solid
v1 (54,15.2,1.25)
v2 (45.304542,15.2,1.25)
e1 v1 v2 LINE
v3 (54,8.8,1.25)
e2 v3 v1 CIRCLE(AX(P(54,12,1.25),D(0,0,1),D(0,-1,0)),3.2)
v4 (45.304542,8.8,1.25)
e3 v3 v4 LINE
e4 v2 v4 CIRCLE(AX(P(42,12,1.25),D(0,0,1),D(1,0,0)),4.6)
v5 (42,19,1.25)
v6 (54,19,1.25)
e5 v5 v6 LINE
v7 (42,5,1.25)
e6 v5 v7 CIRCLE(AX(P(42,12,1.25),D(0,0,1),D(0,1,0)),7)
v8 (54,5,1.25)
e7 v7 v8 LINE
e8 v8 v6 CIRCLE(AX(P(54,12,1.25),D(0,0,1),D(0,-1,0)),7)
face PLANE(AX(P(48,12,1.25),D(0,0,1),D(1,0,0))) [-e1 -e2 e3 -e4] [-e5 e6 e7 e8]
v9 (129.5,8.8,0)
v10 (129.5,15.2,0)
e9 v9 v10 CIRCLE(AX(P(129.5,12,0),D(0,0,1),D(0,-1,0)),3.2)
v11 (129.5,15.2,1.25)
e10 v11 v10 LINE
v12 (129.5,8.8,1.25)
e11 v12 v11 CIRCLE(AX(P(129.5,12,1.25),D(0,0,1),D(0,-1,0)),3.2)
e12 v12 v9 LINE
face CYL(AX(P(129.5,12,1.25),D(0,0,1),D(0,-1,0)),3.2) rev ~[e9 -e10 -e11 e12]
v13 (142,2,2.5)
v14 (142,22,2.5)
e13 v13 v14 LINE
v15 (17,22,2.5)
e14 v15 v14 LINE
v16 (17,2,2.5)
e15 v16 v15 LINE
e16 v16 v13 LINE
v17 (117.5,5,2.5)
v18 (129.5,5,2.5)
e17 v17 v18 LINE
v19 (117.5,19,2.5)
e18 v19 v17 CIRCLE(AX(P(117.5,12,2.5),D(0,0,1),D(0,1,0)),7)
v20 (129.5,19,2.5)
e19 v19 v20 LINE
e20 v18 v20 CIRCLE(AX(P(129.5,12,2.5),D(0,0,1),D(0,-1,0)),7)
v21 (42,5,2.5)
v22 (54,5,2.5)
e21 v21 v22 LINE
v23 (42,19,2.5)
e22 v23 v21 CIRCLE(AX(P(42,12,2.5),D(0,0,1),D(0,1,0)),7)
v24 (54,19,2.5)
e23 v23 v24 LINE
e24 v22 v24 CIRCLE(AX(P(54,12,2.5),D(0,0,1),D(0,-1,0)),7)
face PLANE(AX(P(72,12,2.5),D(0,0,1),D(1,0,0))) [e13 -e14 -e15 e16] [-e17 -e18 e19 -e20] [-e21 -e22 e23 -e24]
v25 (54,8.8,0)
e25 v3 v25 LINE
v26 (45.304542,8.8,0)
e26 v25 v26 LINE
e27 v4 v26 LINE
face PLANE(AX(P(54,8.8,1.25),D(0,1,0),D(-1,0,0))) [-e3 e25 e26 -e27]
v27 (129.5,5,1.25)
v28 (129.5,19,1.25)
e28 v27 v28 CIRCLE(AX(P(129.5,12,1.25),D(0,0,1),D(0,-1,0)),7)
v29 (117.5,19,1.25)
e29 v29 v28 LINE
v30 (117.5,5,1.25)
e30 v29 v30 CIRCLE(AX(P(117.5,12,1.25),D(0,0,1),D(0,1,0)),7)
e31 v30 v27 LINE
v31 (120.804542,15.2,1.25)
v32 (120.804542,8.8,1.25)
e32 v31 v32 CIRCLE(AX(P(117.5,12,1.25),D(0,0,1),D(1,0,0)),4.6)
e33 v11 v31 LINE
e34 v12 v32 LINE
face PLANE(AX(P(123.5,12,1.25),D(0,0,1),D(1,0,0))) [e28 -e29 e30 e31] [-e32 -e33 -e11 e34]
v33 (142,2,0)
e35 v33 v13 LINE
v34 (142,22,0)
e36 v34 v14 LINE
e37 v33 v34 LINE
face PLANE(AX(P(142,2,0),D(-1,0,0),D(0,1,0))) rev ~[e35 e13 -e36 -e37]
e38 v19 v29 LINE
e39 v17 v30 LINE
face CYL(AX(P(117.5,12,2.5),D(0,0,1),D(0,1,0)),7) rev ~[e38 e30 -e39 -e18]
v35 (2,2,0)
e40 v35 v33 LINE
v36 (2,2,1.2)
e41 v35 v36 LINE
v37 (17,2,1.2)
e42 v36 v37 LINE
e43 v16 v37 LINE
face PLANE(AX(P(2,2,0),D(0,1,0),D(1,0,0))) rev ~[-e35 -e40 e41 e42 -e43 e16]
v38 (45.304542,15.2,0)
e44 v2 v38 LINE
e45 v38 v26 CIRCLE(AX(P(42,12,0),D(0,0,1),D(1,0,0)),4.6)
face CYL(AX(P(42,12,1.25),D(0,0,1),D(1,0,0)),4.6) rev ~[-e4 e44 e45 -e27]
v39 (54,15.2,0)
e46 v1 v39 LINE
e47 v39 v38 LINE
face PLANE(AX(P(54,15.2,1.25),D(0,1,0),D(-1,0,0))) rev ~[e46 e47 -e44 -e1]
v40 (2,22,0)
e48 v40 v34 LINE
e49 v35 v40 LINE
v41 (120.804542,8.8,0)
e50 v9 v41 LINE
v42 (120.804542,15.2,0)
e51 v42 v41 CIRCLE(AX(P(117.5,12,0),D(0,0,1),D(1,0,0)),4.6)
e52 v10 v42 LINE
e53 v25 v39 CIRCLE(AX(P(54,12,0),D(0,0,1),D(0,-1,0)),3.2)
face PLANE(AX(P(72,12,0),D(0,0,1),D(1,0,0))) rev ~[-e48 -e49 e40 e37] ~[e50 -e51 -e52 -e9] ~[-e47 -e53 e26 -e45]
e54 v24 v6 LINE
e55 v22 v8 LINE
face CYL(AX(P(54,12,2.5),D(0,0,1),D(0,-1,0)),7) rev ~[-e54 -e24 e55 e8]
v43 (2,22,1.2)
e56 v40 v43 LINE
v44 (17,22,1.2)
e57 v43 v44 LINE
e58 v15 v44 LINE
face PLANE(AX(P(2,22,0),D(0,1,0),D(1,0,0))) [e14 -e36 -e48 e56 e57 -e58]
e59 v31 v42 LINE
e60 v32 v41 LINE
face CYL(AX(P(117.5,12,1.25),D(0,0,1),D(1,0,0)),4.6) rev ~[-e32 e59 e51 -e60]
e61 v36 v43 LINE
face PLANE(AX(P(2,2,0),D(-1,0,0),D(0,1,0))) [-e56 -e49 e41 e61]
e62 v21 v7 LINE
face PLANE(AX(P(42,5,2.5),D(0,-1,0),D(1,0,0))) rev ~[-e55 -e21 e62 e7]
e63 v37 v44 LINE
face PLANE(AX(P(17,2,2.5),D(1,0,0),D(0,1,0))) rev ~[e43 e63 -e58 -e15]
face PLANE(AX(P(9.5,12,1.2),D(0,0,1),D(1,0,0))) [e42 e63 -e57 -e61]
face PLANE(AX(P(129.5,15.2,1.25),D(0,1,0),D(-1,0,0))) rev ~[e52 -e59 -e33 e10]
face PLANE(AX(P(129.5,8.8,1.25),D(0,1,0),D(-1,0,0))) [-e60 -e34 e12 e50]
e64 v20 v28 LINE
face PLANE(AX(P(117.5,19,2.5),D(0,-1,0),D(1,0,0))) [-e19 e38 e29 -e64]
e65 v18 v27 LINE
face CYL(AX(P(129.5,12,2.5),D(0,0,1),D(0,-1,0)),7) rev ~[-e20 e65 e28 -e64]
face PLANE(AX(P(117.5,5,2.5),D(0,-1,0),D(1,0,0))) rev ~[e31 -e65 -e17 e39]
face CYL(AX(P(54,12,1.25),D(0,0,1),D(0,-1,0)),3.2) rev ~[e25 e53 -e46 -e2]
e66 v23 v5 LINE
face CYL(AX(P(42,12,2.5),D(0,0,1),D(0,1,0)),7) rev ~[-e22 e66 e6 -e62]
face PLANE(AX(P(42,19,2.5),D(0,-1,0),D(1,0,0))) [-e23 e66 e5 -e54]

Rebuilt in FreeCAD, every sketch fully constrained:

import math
import FreeCAD as App
import Part
import Sketcher


def add_polygon(sketch, points):
    """Adds a closed chain of lines whose ends are joined by coincident constraints."""
    first, n = sketch.GeometryCount, len(points)
    for a, b in zip(points, points[1:] + points[:1]):
        sketch.addGeometry(Part.LineSegment(App.Vector(*a, 0), App.Vector(*b, 0)), False)
    for i in range(n):
        sketch.addConstraint(Sketcher.Constraint("Coincident", first + i, 2, first + (i + 1) % n, 1))

doc = App.newDocument("Part")
body = doc.addObject("PartDesign::Body", "Body")

# Sketch on XY plane
sketch1 = body.newObject("Sketcher::SketchObject", "Sketch")
sketch1.AttachmentSupport = (doc.getObject("XY_Plane"), [""])
sketch1.MapMode = "FlatFace"
add_polygon(sketch1, [(2, 22), (2, 2), (142, 2), (142, 22)])  # lines 0-3
sketch1.addConstraint(Sketcher.Constraint("Vertical", 0))
sketch1.addConstraint(Sketcher.Constraint("Horizontal", 1))
sketch1.addConstraint(Sketcher.Constraint("Vertical", 2))
sketch1.addConstraint(Sketcher.Constraint("Horizontal", 3))
sketch1.addConstraint(Sketcher.Constraint("DistanceX", 1, 1, 1, 2, 140.0))
sketch1.addConstraint(Sketcher.Constraint("DistanceY", 0, 2, 0, 1, 20.0))
sketch1.addConstraint(Sketcher.Constraint("DistanceX", -1, 1, 0, 2, 2.0))
sketch1.addConstraint(Sketcher.Constraint("DistanceY", -1, 1, 0, 2, 2.0))
pad1 = body.newObject("PartDesign::Pad", "Pad")
pad1.Profile = sketch1
pad1.Length = 2.5

# Sketch on XY plane
sketch2 = body.newObject("Sketcher::SketchObject", "Sketch001")
sketch2.AttachmentSupport = (doc.getObject("XY_Plane"), [""])
sketch2.MapMode = "FlatFace"
sketch2.AttachmentOffset = App.Placement(App.Vector(0, 0, 2.5), App.Rotation())
add_polygon(sketch2, [(2, 22), (2, 2), (17, 2), (17, 22)])  # lines 0-3
sketch2.addConstraint(Sketcher.Constraint("Vertical", 0))
sketch2.addConstraint(Sketcher.Constraint("Horizontal", 1))
sketch2.addConstraint(Sketcher.Constraint("Vertical", 2))
sketch2.addConstraint(Sketcher.Constraint("Horizontal", 3))
sketch2.addConstraint(Sketcher.Constraint("DistanceX", 1, 1, 1, 2, 15.0))
sketch2.addConstraint(Sketcher.Constraint("DistanceY", 0, 2, 0, 1, 20.0))
sketch2.addConstraint(Sketcher.Constraint("DistanceX", -1, 1, 0, 2, 2.0))
sketch2.addConstraint(Sketcher.Constraint("DistanceY", -1, 1, 0, 2, 2.0))
pocket1 = body.newObject("PartDesign::Pocket", "Pocket")
pocket1.Profile = sketch2
pocket1.Length = 1.3

# Sketch on XY plane
sketch3 = body.newObject("Sketcher::SketchObject", "Sketch002")
sketch3.AttachmentSupport = (doc.getObject("XY_Plane"), [""])
sketch3.MapMode = "FlatFace"
sketch3.AttachmentOffset = App.Placement(App.Vector(0, 0, 2.5), App.Rotation())
sketch3.addGeometry(Part.ArcOfCircle(Part.Circle(App.Vector(42, 12, 0), App.Vector(0, 0, 1), 7), math.radians(90), math.radians(270)), False)
sketch3.addGeometry(Part.LineSegment(App.Vector(42, 5, 0), App.Vector(54, 5, 0)), False)
sketch3.addGeometry(Part.ArcOfCircle(Part.Circle(App.Vector(54, 12, 0), App.Vector(0, 0, 1), 7), math.radians(-90), math.radians(90)), False)
sketch3.addGeometry(Part.LineSegment(App.Vector(54, 19, 0), App.Vector(42, 19, 0)), False)
sketch3.addGeometry(Part.ArcOfCircle(Part.Circle(App.Vector(118, 12, 0), App.Vector(0, 0, 1), 7), math.radians(90), math.radians(270)), False)
sketch3.addGeometry(Part.LineSegment(App.Vector(118, 5, 0), App.Vector(130, 5, 0)), False)
sketch3.addGeometry(Part.ArcOfCircle(Part.Circle(App.Vector(130, 12, 0), App.Vector(0, 0, 1), 7), math.radians(-90), math.radians(90)), False)
sketch3.addGeometry(Part.LineSegment(App.Vector(130, 19, 0), App.Vector(118, 19, 0)), False)
sketch3.addConstraint(Sketcher.Constraint("Tangent", 0, 2, 1, 1))
sketch3.addConstraint(Sketcher.Constraint("Tangent", 1, 2, 2, 1))
sketch3.addConstraint(Sketcher.Constraint("Tangent", 2, 2, 3, 1))
sketch3.addConstraint(Sketcher.Constraint("Tangent", 3, 2, 0, 1))
sketch3.addConstraint(Sketcher.Constraint("Tangent", 4, 2, 5, 1))
sketch3.addConstraint(Sketcher.Constraint("Tangent", 5, 2, 6, 1))
sketch3.addConstraint(Sketcher.Constraint("Tangent", 6, 2, 7, 1))
sketch3.addConstraint(Sketcher.Constraint("Tangent", 7, 2, 4, 1))
sketch3.addConstraint(Sketcher.Constraint("Horizontal", 1))
sketch3.addConstraint(Sketcher.Constraint("Horizontal", 3))
sketch3.addConstraint(Sketcher.Constraint("Horizontal", 5))
sketch3.addConstraint(Sketcher.Constraint("Horizontal", 7))
sketch3.addConstraint(Sketcher.Constraint("Equal", 2, 4))
sketch3.addConstraint(Sketcher.Constraint("Horizontal", 2, 3, 4, 3))
sketch3.addConstraint(Sketcher.Constraint("Equal", 3, 5))
sketch3.addConstraint(Sketcher.Constraint("Radius", 0, 7.0))
sketch3.addConstraint(Sketcher.Constraint("DistanceX", 1, 1, 1, 2, 12.0))
sketch3.addConstraint(Sketcher.Constraint("DistanceX", -1, 1, 0, 3, 42.0))
sketch3.addConstraint(Sketcher.Constraint("DistanceY", -1, 1, 0, 3, 12.0))
sketch3.addConstraint(Sketcher.Constraint("DistanceX", -1, 1, 4, 3, 117.5))
pocket2 = body.newObject("PartDesign::Pocket", "Pocket001")
pocket2.Profile = sketch3
pocket2.Length = 1.25

# Sketch on XY plane
sketch4 = body.newObject("Sketcher::SketchObject", "Sketch003")
sketch4.AttachmentSupport = (doc.getObject("XY_Plane"), [""])
sketch4.MapMode = "FlatFace"
sketch4.AttachmentOffset = App.Placement(App.Vector(0, 0, 1.25), App.Rotation())
sketch4.addGeometry(Part.LineSegment(App.Vector(45.3, 8.8, 0), App.Vector(54, 8.8, 0)), False)
sketch4.addGeometry(Part.ArcOfCircle(Part.Circle(App.Vector(54, 12, 0), App.Vector(0, 0, 1), 3.2), math.radians(-90), math.radians(90)), False)
sketch4.addGeometry(Part.LineSegment(App.Vector(54, 15.2, 0), App.Vector(45.3, 15.2, 0)), False)
sketch4.addGeometry(Part.ArcOfCircle(Part.Circle(App.Vector(42, 12, 0), App.Vector(0, 0, 1), 4.6), math.radians(44), math.radians(316)), False)
sketch4.addGeometry(Part.LineSegment(App.Vector(120.8, 8.8, 0), App.Vector(129.5, 8.8, 0)), False)
sketch4.addGeometry(Part.ArcOfCircle(Part.Circle(App.Vector(129.5, 12, 0), App.Vector(0, 0, 1), 3.2), math.radians(-90), math.radians(90)), False)
sketch4.addGeometry(Part.LineSegment(App.Vector(129.5, 15.2, 0), App.Vector(120.8, 15.2, 0)), False)
sketch4.addGeometry(Part.ArcOfCircle(Part.Circle(App.Vector(117.5, 12, 0), App.Vector(0, 0, 1), 4.6), math.radians(44), math.radians(316)), False)
sketch4.addConstraint(Sketcher.Constraint("Tangent", 0, 2, 1, 1))
sketch4.addConstraint(Sketcher.Constraint("Tangent", 1, 2, 2, 1))
sketch4.addConstraint(Sketcher.Constraint("Coincident", 2, 2, 3, 1))
sketch4.addConstraint(Sketcher.Constraint("Coincident", 3, 2, 0, 1))
sketch4.addConstraint(Sketcher.Constraint("Tangent", 4, 2, 5, 1))
sketch4.addConstraint(Sketcher.Constraint("Tangent", 5, 2, 6, 1))
sketch4.addConstraint(Sketcher.Constraint("Coincident", 6, 2, 7, 1))
sketch4.addConstraint(Sketcher.Constraint("Coincident", 7, 2, 4, 1))
sketch4.addConstraint(Sketcher.Constraint("Horizontal", 0))
sketch4.addConstraint(Sketcher.Constraint("Horizontal", 2))
sketch4.addConstraint(Sketcher.Constraint("Horizontal", 4))
sketch4.addConstraint(Sketcher.Constraint("Horizontal", 6))
sketch4.addConstraint(Sketcher.Constraint("Equal", 1, 5))
sketch4.addConstraint(Sketcher.Constraint("Equal", 3, 7))
sketch4.addConstraint(Sketcher.Constraint("Horizontal", 1, 3, 3, 3))
sketch4.addConstraint(Sketcher.Constraint("Horizontal", 3, 3, 5, 3))
sketch4.addConstraint(Sketcher.Constraint("Horizontal", 5, 3, 7, 3))
sketch4.addConstraint(Sketcher.Constraint("Equal", 2, 4))
sketch4.addConstraint(Sketcher.Constraint("Radius", 1, 3.2))
sketch4.addConstraint(Sketcher.Constraint("Radius", 3, 4.6))
sketch4.addConstraint(Sketcher.Constraint("DistanceX", -1, 1, 1, 3, 54.0))
sketch4.addConstraint(Sketcher.Constraint("DistanceY", -1, 1, 1, 3, 12.0))
sketch4.addConstraint(Sketcher.Constraint("DistanceX", -1, 1, 3, 3, 42.0))
sketch4.addConstraint(Sketcher.Constraint("DistanceX", -1, 1, 5, 3, 129.5))
pocket3 = body.newObject("PartDesign::Pocket", "Pocket002")
pocket3.Profile = sketch4
pocket3.Type = "ThroughAll"

doc.recompute()
